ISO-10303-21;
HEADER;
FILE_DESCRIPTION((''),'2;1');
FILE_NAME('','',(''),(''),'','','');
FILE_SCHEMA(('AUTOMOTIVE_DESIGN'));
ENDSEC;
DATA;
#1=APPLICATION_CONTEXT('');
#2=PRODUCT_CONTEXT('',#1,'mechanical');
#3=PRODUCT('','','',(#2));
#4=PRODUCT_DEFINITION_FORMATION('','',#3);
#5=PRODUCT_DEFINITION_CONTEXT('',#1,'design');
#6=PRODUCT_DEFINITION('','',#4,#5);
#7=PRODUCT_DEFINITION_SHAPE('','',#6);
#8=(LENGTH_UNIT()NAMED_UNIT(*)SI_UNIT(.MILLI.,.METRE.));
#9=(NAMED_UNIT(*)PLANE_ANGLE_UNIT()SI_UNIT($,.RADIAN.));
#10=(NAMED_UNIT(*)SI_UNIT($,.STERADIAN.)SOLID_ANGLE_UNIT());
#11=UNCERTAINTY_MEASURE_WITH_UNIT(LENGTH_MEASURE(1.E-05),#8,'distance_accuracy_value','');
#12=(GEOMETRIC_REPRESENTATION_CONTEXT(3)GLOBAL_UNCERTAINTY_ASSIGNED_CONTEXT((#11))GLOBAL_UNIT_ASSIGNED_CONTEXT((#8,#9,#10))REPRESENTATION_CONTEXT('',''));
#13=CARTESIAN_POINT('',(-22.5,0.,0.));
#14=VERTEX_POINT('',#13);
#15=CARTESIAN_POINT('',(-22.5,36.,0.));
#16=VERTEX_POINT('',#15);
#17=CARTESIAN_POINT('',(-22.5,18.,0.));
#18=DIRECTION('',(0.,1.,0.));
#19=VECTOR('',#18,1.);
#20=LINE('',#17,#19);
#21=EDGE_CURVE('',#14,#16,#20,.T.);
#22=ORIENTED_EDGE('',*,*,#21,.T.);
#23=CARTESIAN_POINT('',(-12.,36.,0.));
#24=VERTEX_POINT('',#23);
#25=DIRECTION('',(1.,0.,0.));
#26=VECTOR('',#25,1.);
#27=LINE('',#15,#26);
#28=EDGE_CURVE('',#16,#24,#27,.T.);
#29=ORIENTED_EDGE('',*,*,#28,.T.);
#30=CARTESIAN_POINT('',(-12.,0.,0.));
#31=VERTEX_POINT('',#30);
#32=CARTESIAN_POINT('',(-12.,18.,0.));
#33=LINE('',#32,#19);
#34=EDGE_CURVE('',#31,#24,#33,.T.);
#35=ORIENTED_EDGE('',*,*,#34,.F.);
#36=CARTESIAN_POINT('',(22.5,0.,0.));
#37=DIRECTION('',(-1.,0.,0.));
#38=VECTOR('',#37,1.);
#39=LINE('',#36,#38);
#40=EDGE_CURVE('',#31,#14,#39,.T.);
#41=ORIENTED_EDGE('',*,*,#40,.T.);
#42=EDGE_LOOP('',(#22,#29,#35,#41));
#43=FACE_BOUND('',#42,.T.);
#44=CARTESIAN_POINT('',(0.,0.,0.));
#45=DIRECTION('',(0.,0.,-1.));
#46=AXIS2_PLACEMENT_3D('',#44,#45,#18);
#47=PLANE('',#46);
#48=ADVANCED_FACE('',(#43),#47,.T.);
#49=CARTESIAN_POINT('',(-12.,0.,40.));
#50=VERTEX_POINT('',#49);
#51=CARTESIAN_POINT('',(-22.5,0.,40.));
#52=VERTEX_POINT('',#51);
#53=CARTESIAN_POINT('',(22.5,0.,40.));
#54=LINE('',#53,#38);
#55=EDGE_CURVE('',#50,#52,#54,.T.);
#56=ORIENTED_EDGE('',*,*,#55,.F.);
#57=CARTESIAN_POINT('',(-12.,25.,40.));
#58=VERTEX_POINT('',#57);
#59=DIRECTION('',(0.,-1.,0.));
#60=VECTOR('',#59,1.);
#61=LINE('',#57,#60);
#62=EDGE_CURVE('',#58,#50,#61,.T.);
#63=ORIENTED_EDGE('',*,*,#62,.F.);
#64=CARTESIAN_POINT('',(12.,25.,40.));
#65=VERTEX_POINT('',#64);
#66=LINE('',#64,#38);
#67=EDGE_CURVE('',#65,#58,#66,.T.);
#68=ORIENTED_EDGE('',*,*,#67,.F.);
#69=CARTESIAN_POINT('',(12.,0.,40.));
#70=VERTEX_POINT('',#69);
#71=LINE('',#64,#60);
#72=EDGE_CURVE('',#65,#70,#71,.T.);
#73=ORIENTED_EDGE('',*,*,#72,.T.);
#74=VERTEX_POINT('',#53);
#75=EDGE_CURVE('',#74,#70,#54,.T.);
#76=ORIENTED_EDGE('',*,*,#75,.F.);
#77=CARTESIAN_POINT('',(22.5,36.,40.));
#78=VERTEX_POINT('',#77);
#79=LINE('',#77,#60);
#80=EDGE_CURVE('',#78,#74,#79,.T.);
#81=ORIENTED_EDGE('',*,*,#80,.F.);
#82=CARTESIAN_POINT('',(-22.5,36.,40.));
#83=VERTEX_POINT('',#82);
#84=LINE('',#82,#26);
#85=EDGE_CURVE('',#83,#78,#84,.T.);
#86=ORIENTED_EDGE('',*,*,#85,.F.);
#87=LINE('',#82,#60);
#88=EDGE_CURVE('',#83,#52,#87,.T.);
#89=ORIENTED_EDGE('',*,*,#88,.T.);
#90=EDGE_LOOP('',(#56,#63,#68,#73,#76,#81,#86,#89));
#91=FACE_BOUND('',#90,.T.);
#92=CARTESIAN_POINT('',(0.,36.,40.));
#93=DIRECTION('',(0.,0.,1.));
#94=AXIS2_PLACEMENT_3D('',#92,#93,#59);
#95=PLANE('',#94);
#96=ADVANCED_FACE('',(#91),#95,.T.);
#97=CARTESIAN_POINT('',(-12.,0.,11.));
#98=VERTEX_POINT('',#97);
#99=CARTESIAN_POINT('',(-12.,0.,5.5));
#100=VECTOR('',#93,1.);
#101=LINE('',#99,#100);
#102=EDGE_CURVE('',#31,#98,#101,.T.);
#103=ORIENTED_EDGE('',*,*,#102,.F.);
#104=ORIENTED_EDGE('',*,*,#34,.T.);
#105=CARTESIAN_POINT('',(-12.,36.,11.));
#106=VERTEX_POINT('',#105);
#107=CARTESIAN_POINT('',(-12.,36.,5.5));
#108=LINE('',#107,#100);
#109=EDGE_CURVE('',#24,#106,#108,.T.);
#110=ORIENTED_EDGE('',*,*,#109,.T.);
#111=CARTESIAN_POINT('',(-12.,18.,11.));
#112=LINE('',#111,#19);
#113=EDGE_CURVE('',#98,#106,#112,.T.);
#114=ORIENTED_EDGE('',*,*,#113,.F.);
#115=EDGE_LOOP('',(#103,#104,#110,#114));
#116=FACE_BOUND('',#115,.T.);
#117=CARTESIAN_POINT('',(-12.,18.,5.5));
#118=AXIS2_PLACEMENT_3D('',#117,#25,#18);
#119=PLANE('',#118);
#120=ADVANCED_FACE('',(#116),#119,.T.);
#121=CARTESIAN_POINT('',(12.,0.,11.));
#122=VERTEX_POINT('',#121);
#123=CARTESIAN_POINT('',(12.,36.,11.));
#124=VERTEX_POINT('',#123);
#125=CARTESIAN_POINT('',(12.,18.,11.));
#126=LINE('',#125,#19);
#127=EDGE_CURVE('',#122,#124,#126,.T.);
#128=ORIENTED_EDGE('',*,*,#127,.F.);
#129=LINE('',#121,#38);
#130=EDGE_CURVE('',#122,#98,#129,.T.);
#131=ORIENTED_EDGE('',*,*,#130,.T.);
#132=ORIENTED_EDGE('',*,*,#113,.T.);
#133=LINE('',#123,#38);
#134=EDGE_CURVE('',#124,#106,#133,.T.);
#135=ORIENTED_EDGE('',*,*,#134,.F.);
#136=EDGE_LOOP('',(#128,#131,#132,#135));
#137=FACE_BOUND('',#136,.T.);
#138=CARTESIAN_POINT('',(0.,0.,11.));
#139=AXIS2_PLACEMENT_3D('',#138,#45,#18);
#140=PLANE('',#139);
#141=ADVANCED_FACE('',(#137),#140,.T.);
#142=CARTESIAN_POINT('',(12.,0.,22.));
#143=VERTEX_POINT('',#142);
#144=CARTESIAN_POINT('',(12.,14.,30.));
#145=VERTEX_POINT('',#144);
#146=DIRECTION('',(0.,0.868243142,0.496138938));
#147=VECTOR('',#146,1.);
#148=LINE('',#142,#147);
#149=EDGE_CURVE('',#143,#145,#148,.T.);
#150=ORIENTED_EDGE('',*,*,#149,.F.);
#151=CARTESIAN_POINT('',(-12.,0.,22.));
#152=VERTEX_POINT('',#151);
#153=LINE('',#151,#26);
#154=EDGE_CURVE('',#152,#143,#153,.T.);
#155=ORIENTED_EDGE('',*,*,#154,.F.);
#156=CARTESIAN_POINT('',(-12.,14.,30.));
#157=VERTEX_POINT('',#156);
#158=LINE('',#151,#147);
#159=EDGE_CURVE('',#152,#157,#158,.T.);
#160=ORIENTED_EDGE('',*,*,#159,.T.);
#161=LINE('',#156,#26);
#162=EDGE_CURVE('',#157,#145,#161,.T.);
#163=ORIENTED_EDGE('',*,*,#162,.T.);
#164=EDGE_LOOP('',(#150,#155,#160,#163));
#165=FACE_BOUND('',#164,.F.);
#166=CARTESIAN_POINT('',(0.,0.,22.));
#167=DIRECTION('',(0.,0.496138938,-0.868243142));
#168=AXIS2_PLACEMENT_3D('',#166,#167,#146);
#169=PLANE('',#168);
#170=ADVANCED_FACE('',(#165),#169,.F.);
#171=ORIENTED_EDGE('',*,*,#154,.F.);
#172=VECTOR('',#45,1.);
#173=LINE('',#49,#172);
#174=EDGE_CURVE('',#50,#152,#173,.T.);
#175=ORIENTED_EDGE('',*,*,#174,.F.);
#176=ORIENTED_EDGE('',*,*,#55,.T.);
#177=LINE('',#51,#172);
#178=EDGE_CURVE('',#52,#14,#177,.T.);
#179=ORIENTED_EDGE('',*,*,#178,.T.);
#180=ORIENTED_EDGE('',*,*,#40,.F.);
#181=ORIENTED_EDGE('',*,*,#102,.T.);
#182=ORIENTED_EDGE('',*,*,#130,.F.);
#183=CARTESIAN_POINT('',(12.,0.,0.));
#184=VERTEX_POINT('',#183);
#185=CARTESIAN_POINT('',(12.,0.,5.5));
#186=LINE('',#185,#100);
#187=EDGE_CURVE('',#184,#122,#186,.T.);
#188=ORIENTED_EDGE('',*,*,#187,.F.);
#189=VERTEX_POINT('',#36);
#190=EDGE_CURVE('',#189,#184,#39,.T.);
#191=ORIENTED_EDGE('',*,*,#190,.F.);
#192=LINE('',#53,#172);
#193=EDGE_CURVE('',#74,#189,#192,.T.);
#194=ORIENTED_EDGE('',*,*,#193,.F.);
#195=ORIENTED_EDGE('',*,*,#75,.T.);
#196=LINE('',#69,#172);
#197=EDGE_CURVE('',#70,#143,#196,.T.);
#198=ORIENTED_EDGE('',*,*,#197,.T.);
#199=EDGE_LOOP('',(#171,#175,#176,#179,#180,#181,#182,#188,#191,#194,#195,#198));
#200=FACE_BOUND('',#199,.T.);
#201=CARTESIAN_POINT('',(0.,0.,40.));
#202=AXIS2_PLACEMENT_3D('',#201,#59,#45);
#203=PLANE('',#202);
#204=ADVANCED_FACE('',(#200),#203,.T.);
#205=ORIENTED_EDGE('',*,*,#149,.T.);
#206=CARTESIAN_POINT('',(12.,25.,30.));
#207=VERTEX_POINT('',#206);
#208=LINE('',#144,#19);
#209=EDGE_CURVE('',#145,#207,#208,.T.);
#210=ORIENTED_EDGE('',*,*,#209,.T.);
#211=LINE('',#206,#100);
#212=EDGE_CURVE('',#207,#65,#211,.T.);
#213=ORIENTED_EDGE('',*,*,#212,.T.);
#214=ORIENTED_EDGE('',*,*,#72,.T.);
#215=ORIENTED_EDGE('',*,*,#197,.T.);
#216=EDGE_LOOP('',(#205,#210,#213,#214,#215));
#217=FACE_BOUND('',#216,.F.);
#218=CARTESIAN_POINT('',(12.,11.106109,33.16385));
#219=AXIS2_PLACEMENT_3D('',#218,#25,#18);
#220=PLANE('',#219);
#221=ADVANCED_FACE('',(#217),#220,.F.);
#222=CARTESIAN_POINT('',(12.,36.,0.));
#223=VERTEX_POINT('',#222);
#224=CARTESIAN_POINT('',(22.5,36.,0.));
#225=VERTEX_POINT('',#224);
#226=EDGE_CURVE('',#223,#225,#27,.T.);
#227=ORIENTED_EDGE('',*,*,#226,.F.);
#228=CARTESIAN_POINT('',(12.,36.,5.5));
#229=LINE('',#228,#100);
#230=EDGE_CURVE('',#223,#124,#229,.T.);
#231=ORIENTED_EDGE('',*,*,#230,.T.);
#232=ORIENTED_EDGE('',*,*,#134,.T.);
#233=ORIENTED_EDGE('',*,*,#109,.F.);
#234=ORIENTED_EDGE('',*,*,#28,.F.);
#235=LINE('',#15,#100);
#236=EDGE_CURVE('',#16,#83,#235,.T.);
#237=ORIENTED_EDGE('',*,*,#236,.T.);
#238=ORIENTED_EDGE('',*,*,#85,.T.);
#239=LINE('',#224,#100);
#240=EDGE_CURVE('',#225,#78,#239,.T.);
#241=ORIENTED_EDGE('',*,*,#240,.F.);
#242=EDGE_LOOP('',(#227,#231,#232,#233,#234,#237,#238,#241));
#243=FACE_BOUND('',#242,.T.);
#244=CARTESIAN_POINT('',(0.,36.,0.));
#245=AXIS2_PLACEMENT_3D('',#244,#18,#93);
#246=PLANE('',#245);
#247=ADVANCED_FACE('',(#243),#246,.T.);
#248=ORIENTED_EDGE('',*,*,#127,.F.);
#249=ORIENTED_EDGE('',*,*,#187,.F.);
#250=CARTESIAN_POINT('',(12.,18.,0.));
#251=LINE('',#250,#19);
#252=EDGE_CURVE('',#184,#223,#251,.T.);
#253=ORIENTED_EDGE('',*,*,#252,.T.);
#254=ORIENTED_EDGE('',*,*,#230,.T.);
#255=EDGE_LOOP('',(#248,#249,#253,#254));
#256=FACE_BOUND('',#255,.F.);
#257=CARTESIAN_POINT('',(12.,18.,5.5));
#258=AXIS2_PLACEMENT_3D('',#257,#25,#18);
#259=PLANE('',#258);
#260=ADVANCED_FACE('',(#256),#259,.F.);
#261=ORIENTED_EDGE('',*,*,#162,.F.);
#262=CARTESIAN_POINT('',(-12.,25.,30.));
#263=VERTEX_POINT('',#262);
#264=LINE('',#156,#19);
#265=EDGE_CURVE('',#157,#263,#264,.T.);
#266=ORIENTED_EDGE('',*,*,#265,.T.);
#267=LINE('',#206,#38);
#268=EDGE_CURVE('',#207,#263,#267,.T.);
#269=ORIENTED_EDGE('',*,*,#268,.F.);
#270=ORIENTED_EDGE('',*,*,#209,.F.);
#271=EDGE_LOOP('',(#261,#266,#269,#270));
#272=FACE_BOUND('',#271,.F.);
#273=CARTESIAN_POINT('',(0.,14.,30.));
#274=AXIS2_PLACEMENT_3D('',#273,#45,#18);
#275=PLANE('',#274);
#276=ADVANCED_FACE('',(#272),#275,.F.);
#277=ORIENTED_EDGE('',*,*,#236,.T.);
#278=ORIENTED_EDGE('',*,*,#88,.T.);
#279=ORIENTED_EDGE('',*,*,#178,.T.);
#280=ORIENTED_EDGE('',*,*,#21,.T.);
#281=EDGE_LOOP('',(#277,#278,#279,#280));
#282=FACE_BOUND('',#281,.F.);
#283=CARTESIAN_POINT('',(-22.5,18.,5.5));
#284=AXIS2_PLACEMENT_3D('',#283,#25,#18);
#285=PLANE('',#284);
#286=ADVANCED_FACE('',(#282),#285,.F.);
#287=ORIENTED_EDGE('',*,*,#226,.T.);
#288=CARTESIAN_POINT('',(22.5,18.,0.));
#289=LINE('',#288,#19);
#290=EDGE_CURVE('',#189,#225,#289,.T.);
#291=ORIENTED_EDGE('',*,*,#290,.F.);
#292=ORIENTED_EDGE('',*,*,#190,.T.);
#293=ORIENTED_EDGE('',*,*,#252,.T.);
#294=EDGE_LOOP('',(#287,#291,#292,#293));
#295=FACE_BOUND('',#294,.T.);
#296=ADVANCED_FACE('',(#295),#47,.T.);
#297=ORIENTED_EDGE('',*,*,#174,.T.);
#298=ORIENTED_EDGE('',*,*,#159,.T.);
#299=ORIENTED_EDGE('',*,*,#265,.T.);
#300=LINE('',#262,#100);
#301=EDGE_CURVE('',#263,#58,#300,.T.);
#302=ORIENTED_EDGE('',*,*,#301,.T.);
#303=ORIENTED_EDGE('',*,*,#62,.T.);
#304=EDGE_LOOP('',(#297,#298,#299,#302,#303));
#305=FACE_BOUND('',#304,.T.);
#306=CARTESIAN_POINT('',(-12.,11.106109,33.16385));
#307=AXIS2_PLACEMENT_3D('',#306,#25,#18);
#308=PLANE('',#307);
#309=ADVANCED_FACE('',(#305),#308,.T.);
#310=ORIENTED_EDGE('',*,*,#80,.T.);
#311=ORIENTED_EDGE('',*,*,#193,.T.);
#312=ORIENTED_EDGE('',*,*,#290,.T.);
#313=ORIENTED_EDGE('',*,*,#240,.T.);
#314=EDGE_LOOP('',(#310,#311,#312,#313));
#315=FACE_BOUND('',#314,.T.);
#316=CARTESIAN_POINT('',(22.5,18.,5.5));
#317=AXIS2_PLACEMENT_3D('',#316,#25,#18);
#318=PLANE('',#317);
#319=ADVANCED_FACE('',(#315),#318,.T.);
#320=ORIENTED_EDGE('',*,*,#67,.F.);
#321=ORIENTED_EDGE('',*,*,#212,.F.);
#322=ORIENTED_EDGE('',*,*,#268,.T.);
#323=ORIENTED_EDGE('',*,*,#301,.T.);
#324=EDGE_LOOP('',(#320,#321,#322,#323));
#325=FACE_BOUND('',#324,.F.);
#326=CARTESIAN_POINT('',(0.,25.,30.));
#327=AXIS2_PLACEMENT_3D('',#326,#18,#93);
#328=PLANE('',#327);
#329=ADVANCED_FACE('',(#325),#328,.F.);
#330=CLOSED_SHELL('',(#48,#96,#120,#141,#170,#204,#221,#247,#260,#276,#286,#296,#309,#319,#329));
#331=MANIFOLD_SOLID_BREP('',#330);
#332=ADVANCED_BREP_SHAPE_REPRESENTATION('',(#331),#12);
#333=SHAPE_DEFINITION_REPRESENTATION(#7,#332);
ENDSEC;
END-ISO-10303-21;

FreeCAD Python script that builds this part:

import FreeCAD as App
import Part
import Sketcher
from FreeCAD import Vector

doc = App.newDocument("Part")
body = doc.addObject("PartDesign::Body", "Body")

# Sketch on YZ plane
sketch1 = doc.addObject("Sketcher::SketchObject", "Sketch")
body.addObject(sketch1)
sketch1.AttachmentSupport = (doc.YZ_Plane, [""])
sketch1.MapMode = "FlatFace"
sketch1.addGeometry([
    Part.LineSegment(Vector(0, 0, 0), Vector(36, 0, 0)),
    Part.LineSegment(Vector(36, 0, 0), Vector(36, 40, 0)),
    Part.LineSegment(Vector(36, 40, 0), Vector(0, 40, 0)),
    Part.LineSegment(Vector(0, 40, 0), Vector(0, 0, 0)),
], False)
sketch1.addConstraint([
    Sketcher.Constraint("Coincident", 0, 2, 1, 1),
    Sketcher.Constraint("Coincident", 1, 2, 2, 1),
    Sketcher.Constraint("Coincident", 2, 2, 3, 1),
    Sketcher.Constraint("Coincident", 3, 2, 0, 1),
    Sketcher.Constraint("Horizontal", 0),
    Sketcher.Constraint("Vertical", 1),
    Sketcher.Constraint("Horizontal", 2),
    Sketcher.Constraint("Vertical", 3),
    Sketcher.Constraint("Coincident", 3, 2, -1, 1),
    Sketcher.Constraint("DistanceX", 0, 1, 0, 2, 36.0),
    Sketcher.Constraint("DistanceY", 1, 1, 1, 2, 40.0),
])
pad1 = doc.addObject("PartDesign::Pad", "Pad")
body.addObject(pad1)
pad1.Profile = sketch1
pad1.Length = 45
pad1.Midplane = True

# Sketch on YZ plane
sketch2 = doc.addObject("Sketcher::SketchObject", "Sketch001")
body.addObject(sketch2)
sketch2.AttachmentSupport = (doc.YZ_Plane, [""])
sketch2.MapMode = "FlatFace"
sketch2.addGeometry([
    Part.LineSegment(Vector(0, 11, 0), Vector(0, 0, 0)),
    Part.LineSegment(Vector(0, 0, 0), Vector(36, 0, 0)),
    Part.LineSegment(Vector(36, 0, 0), Vector(36, 11, 0)),
    Part.LineSegment(Vector(36, 11, 0), Vector(0, 11, 0)),
], False)
sketch2.addConstraint([
    Sketcher.Constraint("Coincident", 0, 2, 1, 1),
    Sketcher.Constraint("Coincident", 1, 2, 2, 1),
    Sketcher.Constraint("Coincident", 2, 2, 3, 1),
    Sketcher.Constraint("Coincident", 3, 2, 0, 1),
    Sketcher.Constraint("Vertical", 0),
    Sketcher.Constraint("Horizontal", 1),
    Sketcher.Constraint("Vertical", 2),
    Sketcher.Constraint("Horizontal", 3),
    Sketcher.Constraint("Coincident", 0, 2, -1, 1),
    Sketcher.Constraint("DistanceX", 1, 1, 1, 2, 36.0),
    Sketcher.Constraint("DistanceY", 0, 2, 0, 1, 11.0),
])
pocket1 = doc.addObject("PartDesign::Pocket", "Pocket")
body.addObject(pocket1)
pocket1.Profile = sketch2
pocket1.Length = 24
pocket1.Midplane = True

# Sketch on YZ plane
sketch3 = doc.addObject("Sketcher::SketchObject", "Sketch002")
body.addObject(sketch3)
sketch3.AttachmentSupport = (doc.YZ_Plane, [""])
sketch3.MapMode = "FlatFace"
sketch3.addGeometry([
    Part.LineSegment(Vector(0, 40, 0), Vector(0, 22, 0)),  # 0
    Part.LineSegment(Vector(0, 22, 0), Vector(14, 30, 0)),  # 1
    Part.LineSegment(Vector(14, 30, 0), Vector(25, 30, 0)),  # 2
    Part.LineSegment(Vector(25, 30, 0), Vector(25, 40, 0)),  # 3
    Part.LineSegment(Vector(25, 40, 0), Vector(0, 40, 0)),  # 4
], False)
sketch3.addConstraint([
    Sketcher.Constraint("Coincident", 0, 2, 1, 1),
    Sketcher.Constraint("Coincident", 1, 2, 2, 1),
    Sketcher.Constraint("Coincident", 2, 2, 3, 1),
    Sketcher.Constraint("Coincident", 3, 2, 4, 1),
    Sketcher.Constraint("Coincident", 4, 2, 0, 1),
    Sketcher.Constraint("Vertical", 0),
    Sketcher.Constraint("Horizontal", 2),
    Sketcher.Constraint("Vertical", 3),
    Sketcher.Constraint("Horizontal", 4),
    Sketcher.Constraint("PointOnObject", 0, 2, -2),
    Sketcher.Constraint("DistanceX", 2, 1, 2, 2, 11.0),
    Sketcher.Constraint("DistanceX", 4, 2, 4, 1, 25.0),
    Sketcher.Constraint("DistanceY", 0, 2, 0, 1, 18.0),
    Sketcher.Constraint("DistanceY", 3, 1, 3, 2, 10.0),
    Sketcher.Constraint("DistanceY", -1, 1, 0, 2, 22.0),
])
pocket2 = doc.addObject("PartDesign::Pocket", "Pocket001")
body.addObject(pocket2)
pocket2.Profile = sketch3
pocket2.Length = 24
pocket2.Midplane = True

doc.recompute()
